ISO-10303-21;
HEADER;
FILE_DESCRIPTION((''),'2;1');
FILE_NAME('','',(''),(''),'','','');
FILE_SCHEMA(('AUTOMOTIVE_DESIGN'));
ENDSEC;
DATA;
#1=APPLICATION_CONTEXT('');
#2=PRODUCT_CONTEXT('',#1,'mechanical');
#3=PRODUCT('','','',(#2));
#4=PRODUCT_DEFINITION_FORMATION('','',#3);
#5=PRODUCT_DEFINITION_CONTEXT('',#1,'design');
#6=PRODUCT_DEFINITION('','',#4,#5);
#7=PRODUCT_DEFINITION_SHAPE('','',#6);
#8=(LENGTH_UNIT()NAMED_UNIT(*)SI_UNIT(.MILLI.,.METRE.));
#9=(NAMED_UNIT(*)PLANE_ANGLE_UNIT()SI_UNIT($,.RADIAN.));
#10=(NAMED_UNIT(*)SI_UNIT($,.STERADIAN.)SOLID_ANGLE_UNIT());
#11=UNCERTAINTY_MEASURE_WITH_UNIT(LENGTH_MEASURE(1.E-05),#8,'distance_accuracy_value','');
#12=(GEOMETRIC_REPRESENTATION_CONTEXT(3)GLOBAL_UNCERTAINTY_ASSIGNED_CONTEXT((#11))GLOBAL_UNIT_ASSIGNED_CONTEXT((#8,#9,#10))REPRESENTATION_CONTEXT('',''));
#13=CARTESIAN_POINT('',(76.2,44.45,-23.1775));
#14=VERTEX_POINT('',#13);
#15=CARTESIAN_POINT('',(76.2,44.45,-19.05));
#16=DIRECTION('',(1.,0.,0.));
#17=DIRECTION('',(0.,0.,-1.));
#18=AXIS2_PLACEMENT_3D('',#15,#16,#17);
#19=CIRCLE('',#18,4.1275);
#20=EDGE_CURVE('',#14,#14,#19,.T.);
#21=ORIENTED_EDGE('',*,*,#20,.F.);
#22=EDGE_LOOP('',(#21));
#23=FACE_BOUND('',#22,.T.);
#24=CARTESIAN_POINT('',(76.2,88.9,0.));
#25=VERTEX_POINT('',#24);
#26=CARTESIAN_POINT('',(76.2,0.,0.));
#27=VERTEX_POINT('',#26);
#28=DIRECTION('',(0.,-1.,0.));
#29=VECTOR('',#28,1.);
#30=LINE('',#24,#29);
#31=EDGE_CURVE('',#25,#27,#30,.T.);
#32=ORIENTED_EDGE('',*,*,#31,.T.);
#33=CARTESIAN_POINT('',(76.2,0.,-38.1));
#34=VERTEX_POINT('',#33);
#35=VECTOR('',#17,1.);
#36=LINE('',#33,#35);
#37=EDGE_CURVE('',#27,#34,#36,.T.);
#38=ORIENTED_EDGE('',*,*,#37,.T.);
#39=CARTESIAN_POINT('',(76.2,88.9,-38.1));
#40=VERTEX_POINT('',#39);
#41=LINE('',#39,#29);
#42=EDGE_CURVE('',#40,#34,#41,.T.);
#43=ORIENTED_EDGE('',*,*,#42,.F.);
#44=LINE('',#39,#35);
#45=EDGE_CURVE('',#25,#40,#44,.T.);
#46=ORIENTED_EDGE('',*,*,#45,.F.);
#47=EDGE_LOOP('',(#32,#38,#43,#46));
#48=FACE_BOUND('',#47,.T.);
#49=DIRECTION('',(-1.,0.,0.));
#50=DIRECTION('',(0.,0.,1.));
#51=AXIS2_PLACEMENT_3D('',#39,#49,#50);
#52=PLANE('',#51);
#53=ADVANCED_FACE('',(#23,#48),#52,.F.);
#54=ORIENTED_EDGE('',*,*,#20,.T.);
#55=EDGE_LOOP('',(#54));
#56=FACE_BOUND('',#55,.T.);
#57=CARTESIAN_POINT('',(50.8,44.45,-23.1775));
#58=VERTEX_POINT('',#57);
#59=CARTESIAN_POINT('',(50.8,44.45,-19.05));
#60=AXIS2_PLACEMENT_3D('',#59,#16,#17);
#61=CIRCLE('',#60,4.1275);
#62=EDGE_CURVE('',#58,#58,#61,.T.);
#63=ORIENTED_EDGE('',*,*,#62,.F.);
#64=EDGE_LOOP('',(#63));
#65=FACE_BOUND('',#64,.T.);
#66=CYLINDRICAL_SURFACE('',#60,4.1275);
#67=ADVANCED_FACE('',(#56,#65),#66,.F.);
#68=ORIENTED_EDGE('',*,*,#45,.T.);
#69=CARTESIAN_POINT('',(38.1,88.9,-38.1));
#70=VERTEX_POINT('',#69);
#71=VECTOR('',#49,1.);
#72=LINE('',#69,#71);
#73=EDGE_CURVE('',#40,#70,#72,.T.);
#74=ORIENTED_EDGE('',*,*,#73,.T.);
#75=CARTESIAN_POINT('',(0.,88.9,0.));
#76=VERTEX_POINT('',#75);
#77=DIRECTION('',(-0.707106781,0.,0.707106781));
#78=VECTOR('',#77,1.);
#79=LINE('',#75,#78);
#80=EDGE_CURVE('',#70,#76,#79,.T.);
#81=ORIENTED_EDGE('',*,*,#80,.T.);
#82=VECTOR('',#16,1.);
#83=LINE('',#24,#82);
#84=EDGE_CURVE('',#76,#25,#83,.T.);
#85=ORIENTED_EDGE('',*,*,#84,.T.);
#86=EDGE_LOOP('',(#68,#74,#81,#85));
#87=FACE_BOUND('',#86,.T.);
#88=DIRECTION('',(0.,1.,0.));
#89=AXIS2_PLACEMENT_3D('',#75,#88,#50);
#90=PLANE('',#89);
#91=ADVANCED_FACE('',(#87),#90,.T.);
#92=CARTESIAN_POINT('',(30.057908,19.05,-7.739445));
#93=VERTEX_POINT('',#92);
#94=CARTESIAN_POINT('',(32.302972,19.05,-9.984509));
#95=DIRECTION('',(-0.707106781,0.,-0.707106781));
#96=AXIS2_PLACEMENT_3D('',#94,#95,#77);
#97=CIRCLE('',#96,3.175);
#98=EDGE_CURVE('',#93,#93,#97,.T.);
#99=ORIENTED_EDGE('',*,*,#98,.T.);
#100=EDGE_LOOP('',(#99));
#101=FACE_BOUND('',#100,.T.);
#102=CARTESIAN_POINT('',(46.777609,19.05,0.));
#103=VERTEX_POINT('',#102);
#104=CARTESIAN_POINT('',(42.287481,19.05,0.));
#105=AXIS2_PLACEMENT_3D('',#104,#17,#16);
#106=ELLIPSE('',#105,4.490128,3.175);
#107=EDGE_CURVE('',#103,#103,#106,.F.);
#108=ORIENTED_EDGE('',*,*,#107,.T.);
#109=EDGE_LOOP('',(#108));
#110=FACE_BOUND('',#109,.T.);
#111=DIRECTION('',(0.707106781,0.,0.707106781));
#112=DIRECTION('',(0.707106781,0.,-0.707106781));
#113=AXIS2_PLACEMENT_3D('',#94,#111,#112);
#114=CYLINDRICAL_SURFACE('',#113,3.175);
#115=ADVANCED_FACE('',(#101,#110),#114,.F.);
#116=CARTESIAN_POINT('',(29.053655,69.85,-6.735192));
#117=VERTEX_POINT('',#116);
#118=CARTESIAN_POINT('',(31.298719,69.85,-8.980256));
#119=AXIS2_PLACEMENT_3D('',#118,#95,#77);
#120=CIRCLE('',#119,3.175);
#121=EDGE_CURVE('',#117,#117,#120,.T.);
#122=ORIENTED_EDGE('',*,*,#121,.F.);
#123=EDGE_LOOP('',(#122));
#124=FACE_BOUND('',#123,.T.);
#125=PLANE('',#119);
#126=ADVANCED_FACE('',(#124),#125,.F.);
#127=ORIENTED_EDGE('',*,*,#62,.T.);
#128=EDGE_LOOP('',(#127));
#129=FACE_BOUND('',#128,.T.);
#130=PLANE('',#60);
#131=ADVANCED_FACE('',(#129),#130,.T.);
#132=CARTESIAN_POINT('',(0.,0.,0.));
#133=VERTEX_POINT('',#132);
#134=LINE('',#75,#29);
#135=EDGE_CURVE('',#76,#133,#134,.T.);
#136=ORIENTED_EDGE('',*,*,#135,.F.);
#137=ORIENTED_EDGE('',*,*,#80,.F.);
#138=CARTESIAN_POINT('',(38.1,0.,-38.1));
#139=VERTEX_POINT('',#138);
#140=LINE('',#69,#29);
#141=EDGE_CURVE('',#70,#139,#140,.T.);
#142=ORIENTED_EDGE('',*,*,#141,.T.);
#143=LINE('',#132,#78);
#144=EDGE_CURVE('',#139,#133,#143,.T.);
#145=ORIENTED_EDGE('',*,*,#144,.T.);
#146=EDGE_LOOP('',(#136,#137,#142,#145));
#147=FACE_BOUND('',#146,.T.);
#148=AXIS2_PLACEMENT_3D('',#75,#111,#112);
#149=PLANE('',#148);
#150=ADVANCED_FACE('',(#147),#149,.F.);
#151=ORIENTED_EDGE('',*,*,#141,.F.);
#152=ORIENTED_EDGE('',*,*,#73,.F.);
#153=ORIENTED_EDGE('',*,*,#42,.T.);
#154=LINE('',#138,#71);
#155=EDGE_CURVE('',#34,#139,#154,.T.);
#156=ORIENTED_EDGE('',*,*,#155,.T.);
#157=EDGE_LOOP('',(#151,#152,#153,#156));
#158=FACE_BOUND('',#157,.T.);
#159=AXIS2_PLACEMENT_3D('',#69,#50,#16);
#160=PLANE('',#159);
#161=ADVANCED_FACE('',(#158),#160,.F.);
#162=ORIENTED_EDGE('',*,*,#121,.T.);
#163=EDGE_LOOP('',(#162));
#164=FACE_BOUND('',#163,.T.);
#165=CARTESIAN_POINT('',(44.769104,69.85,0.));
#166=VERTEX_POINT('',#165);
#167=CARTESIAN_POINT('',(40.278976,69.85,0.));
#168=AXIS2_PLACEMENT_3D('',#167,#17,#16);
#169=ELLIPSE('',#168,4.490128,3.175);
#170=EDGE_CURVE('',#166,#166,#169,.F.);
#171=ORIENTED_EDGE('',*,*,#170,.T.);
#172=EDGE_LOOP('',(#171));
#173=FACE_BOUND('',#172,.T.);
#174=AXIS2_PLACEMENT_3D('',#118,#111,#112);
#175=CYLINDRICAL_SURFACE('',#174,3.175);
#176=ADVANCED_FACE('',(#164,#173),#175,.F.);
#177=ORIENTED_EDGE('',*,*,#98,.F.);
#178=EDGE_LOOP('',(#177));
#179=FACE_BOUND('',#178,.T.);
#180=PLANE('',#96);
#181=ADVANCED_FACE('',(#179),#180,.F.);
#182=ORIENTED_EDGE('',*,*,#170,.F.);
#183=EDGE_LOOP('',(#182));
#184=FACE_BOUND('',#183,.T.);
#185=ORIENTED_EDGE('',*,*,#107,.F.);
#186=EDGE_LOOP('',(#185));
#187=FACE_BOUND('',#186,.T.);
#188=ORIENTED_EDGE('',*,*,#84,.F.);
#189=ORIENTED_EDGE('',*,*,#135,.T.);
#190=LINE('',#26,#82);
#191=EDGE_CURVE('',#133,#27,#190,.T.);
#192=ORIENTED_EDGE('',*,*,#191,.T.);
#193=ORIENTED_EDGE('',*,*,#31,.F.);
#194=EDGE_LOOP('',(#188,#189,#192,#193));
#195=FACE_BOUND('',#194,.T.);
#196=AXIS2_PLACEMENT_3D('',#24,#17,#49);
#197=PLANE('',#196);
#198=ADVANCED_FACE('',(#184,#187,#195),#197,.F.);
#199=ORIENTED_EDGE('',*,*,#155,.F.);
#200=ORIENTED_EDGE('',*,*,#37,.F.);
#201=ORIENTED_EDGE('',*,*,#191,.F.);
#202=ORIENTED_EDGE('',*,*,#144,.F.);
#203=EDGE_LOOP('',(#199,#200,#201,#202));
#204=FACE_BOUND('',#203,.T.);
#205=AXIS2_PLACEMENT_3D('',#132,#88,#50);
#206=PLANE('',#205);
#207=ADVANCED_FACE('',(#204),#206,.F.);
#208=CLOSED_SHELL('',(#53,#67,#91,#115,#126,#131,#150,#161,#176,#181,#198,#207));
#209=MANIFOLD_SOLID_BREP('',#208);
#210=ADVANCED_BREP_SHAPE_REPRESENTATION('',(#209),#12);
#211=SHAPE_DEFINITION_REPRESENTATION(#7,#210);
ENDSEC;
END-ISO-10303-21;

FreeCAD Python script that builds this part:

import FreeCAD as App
import Part
import Sketcher
from FreeCAD import Vector
Q = App.Units.Quantity


def add_polygon(sketch, points):
    """Adds a closed chain of lines whose ends are joined by coincident constraints."""
    first, n = sketch.GeometryCount, len(points)
    for a, b in zip(points, points[1:] + points[:1]):
        sketch.addGeometry(Part.LineSegment(App.Vector(*a, 0), App.Vector(*b, 0)), False)
    for i in range(n):
        sketch.addConstraint(Sketcher.Constraint("Coincident", first + i, 2, first + (i + 1) % n, 1))

doc = App.newDocument("Part")
body = doc.addObject("PartDesign::Body", "Body")

# Sketch on XZ plane
sketch1 = body.newObject("Sketcher::SketchObject", "Sketch")
sketch1.AttachmentSupport = (doc.getObject("XZ_Plane"), [""])
sketch1.MapMode = "FlatFace"
add_polygon(sketch1, [(38, -38), (0, 0), (76, 0), (76, -38)])  # lines 0-3
sketch1.addConstraint([
    Sketcher.Constraint("Horizontal", 1),
    Sketcher.Constraint("Vertical", 2),
    Sketcher.Constraint("Horizontal", 3),
    Sketcher.Constraint("Coincident", 0, 2, -1, 1),
    Sketcher.Constraint("Equal", 3, 2),
    Sketcher.Constraint("DistanceX", 1, 1, 1, 2, Q("3 in")),
    Sketcher.Constraint("DistanceX", 3, 2, 3, 1, Q("1.5 in")),
])
pad1 = body.newObject("PartDesign::Pad", "Pad")
pad1.Profile = sketch1
pad1.Length = Q("3.5 in")
pad1.Reversed = True

# Sketch on an angled plane
sketch2 = body.newObject("Sketcher::SketchObject", "Sketch001")
sketch2.Placement = App.Placement(Vector(38.1, 0, 38.1), App.Rotation(Vector(-0.707106781, 0, 0.707106781), Vector(0, 0.999999999, 0), Vector(-0.707106781, 0, -0.707106781), "ZXY"))
sketch2.addGeometry([
    Part.Circle(Vector(-28.5, 69.8, 0), Vector(0, 0, 1), 3.2),
    Part.Circle(Vector(-29.9, 19, 0), Vector(0, 0, 1), 3.2),
], False)
sketch2.addConstraint([
    Sketcher.Constraint("Equal", 0, 1),
    Sketcher.Constraint("Diameter", 0, Q("0.25 in")),
    Sketcher.Constraint("DistanceY", 1, 3, 0, 3, Q("2 in")),
    Sketcher.Constraint("DistanceY", -1, 1, 0, 3, Q("2.75 in")),
    Sketcher.Constraint("DistanceX", 1, 3, 0, 3, Q("1.420228 mm")),
    Sketcher.Constraint("DistanceX", 0, 3, -1, 1, Q("28.481537 mm")),
])
pocket1 = body.newObject("PartDesign::Pocket", "Pocket")
pocket1.Profile = sketch2
pocket1.Length = Q("1.5 in")
pocket1.Reversed = True

# Sketch on YZ plane
sketch3 = body.newObject("Sketcher::SketchObject", "Sketch002")
sketch3.AttachmentSupport = (doc.getObject("YZ_Plane"), [""])
sketch3.MapMode = "FlatFace"
sketch3.AttachmentOffset = App.Placement(Vector(0, 0, 3 * 25.4), App.Rotation())
sketch3.addGeometry(Part.Circle(Vector(44.5, -19.1, 0), Vector(0, 0, 1), 4.1), False)
sketch3.addConstraint([
    Sketcher.Constraint("Diameter", 0, Q("0.325 in")),
    Sketcher.Constraint("DistanceX", -1, 1, 0, 3, Q("1.75 in")),
    Sketcher.Constraint("DistanceY", 0, 3, -1, 1, Q("0.75 in")),
])
pocket2 = body.newObject("PartDesign::Pocket", "Pocket001")
pocket2.Profile = sketch3
pocket2.Length = Q("1 in")

doc.recompute()
